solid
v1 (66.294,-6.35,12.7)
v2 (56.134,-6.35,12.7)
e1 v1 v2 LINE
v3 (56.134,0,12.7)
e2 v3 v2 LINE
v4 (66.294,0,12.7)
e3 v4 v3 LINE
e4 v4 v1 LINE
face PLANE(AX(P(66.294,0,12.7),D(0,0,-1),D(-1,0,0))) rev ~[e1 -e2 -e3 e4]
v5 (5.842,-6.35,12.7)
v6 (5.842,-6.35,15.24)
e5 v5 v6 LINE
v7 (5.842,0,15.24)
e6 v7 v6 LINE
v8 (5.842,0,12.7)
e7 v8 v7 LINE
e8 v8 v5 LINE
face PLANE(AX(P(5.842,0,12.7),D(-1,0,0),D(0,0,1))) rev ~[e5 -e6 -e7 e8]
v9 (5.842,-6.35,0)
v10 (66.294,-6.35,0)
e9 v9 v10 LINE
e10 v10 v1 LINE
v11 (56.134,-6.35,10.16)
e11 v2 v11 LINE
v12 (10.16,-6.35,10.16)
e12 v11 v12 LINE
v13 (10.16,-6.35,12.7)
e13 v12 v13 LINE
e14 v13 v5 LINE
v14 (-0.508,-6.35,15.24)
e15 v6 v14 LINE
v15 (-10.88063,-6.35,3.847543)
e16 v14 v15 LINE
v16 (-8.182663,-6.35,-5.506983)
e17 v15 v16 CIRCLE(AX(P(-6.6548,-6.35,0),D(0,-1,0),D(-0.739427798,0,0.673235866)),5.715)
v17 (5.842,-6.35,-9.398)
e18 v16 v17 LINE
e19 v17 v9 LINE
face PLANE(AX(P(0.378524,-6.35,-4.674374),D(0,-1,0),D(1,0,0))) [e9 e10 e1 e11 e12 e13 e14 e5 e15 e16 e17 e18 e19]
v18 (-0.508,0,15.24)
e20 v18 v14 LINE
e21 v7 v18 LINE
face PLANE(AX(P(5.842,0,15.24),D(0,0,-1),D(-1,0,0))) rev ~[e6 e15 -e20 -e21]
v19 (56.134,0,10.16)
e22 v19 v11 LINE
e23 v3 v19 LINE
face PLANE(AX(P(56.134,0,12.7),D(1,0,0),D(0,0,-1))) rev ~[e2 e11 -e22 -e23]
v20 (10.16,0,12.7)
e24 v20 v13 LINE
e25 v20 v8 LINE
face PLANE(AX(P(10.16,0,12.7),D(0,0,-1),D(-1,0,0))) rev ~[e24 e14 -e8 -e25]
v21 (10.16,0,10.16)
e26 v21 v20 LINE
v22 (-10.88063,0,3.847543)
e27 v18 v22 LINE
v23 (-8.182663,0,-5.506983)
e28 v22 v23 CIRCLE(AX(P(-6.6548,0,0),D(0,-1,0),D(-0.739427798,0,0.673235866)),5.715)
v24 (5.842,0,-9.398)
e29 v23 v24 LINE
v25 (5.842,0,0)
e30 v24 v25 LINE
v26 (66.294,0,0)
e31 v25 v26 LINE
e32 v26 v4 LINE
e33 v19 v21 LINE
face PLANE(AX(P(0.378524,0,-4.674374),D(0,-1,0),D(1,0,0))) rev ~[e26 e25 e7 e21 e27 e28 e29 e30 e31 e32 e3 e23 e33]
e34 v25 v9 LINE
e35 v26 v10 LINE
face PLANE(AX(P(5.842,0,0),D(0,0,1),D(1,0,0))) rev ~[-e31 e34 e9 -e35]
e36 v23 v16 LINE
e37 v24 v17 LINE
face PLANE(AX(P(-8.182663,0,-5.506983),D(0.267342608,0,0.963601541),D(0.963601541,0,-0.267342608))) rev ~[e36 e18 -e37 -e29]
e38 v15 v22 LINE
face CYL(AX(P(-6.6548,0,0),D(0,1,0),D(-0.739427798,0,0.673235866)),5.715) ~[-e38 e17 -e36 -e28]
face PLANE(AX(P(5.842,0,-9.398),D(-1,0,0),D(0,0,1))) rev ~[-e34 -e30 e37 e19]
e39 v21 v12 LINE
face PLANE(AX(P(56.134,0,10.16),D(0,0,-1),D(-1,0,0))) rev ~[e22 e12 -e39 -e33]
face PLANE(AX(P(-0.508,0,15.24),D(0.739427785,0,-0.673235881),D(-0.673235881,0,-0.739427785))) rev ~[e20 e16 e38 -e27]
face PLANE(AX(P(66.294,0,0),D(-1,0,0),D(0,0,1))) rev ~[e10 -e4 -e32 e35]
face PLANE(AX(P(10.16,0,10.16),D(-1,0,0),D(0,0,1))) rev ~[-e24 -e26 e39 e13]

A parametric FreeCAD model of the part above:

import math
import FreeCAD as App
import Part
import Sketcher
from FreeCAD import Vector
Q = App.Units.Quantity

doc = App.newDocument("Part")
body = doc.addObject("PartDesign::Body", "Body")

# Sketch on XZ plane
sketch1 = body.newObject("Sketcher::SketchObject", "Sketch")
sketch1.AttachmentSupport = (doc.getObject("XZ_Plane"), [""])
sketch1.MapMode = "FlatFace"
sketch1.addGeometry(Part.LineSegment(Vector(5.8, -9.4, 0), Vector(5.8, 0, 0)), False)
sketch1.addGeometry(Part.LineSegment(Vector(5.8, 0, 0), Vector(66.3, 0, 0)), False)
sketch1.addGeometry(Part.LineSegment(Vector(66.3, 0, 0), Vector(66.3, 12.7, 0)), False)
sketch1.addGeometry(Part.LineSegment(Vector(66.3, 12.7, 0), Vector(56.1, 12.7, 0)), False)
sketch1.addGeometry(Part.LineSegment(Vector(56.1, 12.7, 0), Vector(56.1, 10.2, 0)), False)
sketch1.addGeometry(Part.LineSegment(Vector(56.1, 10.2, 0), Vector(10.2, 10.2, 0)), False)
sketch1.addGeometry(Part.LineSegment(Vector(10.2, 10.2, 0), Vector(10.2, 12.7, 0)), False)
sketch1.addGeometry(Part.LineSegment(Vector(10.2, 12.7, 0), Vector(5.8, 12.7, 0)), False)
sketch1.addGeometry(Part.LineSegment(Vector(5.8, 12.7, 0), Vector(5.8, 15.2, 0)), False)
sketch1.addGeometry(Part.LineSegment(Vector(5.8, 15.2, 0), Vector(-0.5, 15.2, 0)), False)
sketch1.addGeometry(Part.LineSegment(Vector(-0.5, 15.2, 0), Vector(-10.9, 3.8, 0)), False)
sketch1.addGeometry(Part.ArcOfCircle(Part.Circle(Vector(-6.7, 0, 0), Vector(0, 0, 1), 5.7), math.radians(138), math.radians(254)), False)
sketch1.addGeometry(Part.LineSegment(Vector(-8.2, -5.5, 0), Vector(5.8, -9.4, 0)), False)
sketch1.addConstraint(Sketcher.Constraint("Coincident", 0, 2, 1, 1))
sketch1.addConstraint(Sketcher.Constraint("Coincident", 1, 2, 2, 1))
sketch1.addConstraint(Sketcher.Constraint("Coincident", 2, 2, 3, 1))
sketch1.addConstraint(Sketcher.Constraint("Coincident", 3, 2, 4, 1))
sketch1.addConstraint(Sketcher.Constraint("Coincident", 4, 2, 5, 1))
sketch1.addConstraint(Sketcher.Constraint("Coincident", 5, 2, 6, 1))
sketch1.addConstraint(Sketcher.Constraint("Coincident", 6, 2, 7, 1))
sketch1.addConstraint(Sketcher.Constraint("Coincident", 7, 2, 8, 1))
sketch1.addConstraint(Sketcher.Constraint("Coincident", 8, 2, 9, 1))
sketch1.addConstraint(Sketcher.Constraint("Coincident", 9, 2, 10, 1))
sketch1.addConstraint(Sketcher.Constraint("Tangent", 10, 2, 11, 1))
sketch1.addConstraint(Sketcher.Constraint("Tangent", 11, 2, 12, 1))
sketch1.addConstraint(Sketcher.Constraint("Coincident", 12, 2, 0, 1))
sketch1.addConstraint(Sketcher.Constraint("Vertical", 0))
sketch1.addConstraint(Sketcher.Constraint("Horizontal", 1))
sketch1.addConstraint(Sketcher.Constraint("Vertical", 2))
sketch1.addConstraint(Sketcher.Constraint("Horizontal", 3))
sketch1.addConstraint(Sketcher.Constraint("Vertical", 4))
sketch1.addConstraint(Sketcher.Constraint("Horizontal", 5))
sketch1.addConstraint(Sketcher.Constraint("Vertical", 6))
sketch1.addConstraint(Sketcher.Constraint("Horizontal", 7))
sketch1.addConstraint(Sketcher.Constraint("Vertical", 8))
sketch1.addConstraint(Sketcher.Constraint("Horizontal", 9))
sketch1.addConstraint(Sketcher.Constraint("PointOnObject", 11, 3, -1))
sketch1.addConstraint(Sketcher.Constraint("PointOnObject", 0, 2, -1))
sketch1.addConstraint(Sketcher.Constraint("Horizontal", 3, 2, 6, 2))
sketch1.addConstraint(Sketcher.Constraint("Vertical", 0, 2, 7, 2))
sketch1.addConstraint(Sketcher.Constraint("Equal", 6, 8))
sketch1.addConstraint(Sketcher.Constraint("DistanceX", 3, 2, 3, 1, Q("0.4 in")))
sketch1.addConstraint(Sketcher.Constraint("DistanceY", 2, 1, 2, 2, Q("0.5 in")))
sketch1.addConstraint(Sketcher.Constraint("DistanceY", 4, 2, 4, 1, Q("0.1 in")))
sketch1.addConstraint(Sketcher.Constraint("Radius", 11, Q("0.225 in")))
sketch1.addConstraint(Sketcher.Constraint("DistanceX", 1, 1, 1, 2, Q("2.38 in")))
sketch1.addConstraint(Sketcher.Constraint("DistanceX", 5, 2, 5, 1, Q("1.81 in")))
sketch1.addConstraint(Sketcher.Constraint("DistanceX", 9, 2, 9, 1, Q("0.25 in")))
sketch1.addConstraint(Sketcher.Constraint("DistanceY", 0, 1, 0, 2, Q("0.37 in")))
sketch1.addConstraint(Sketcher.Constraint("DistanceX", -1, 1, 5, 2, Q("0.4 in")))
sketch1.addConstraint(Sketcher.Constraint("DistanceX", 11, 3, -1, 1, Q("0.262 in")))
pad1 = body.newObject("PartDesign::Pad", "Pad")
pad1.Profile = sketch1
pad1.Length = Q("0.25 in")

# Sketch on XZ plane
sketch2 = body.newObject("Sketcher::SketchObject", "Sketch001")
sketch2.AttachmentSupport = (doc.getObject("XZ_Plane"), [""])
sketch2.MapMode = "FlatFace"
sketch2.addGeometry(Part.ArcOfCircle(Part.Circle(Vector(-6.7, 0, 0), Vector(0, 0, 1), 5.7), math.radians(-106), math.radians(0)), False)
sketch2.addGeometry(Part.ArcOfCircle(Part.Circle(Vector(-6.7, 0, 0), Vector(0, 0, 1), 5.7), math.radians(0), math.radians(138)), False)
sketch2.addGeometry(Part.ArcOfCircle(Part.Circle(Vector(-6.7, 0, 0), Vector(0, 0, 1), 5.7), math.radians(138), math.radians(254)), False)
sketch2.addGeometry(Part.Circle(Vector(-6.7, 0, 0), Vector(0, 0, 1), 3.2), False)
sketch2.addConstraint(Sketcher.Constraint("Tangent", 0, 2, 1, 1))
sketch2.addConstraint(Sketcher.Constraint("Tangent", 1, 2, 2, 1))
sketch2.addConstraint(Sketcher.Constraint("Tangent", 2, 2, 0, 1))
sketch2.addConstraint(Sketcher.Constraint("Coincident", 3, 3, 0, 3))
sketch2.addConstraint(Sketcher.Constraint("PointOnObject", 0, 3, -1))
sketch2.addConstraint(Sketcher.Constraint("PointOnObject", 0, 2, -1))
sketch2.addConstraint(Sketcher.Constraint("Diameter", 3, Q("0.25 in")))
sketch2.addConstraint(Sketcher.Constraint("Radius", 0, Q("0.225 in")))
sketch2.addConstraint(Sketcher.Constraint("DistanceX", 0, 3, -1, 1, Q("0.262 in")))
sketch2.addConstraint(Sketcher.Constraint("DistanceX", 1, 2, -1, 1, 10.88063))
sketch2.addConstraint(Sketcher.Constraint("DistanceX", 2, 2, -1, 1, 8.182663))
pad2 = body.newObject("PartDesign::Pad", "Pad001")
pad2.Profile = sketch2
pad2.Length = Q("0.12 in")

doc.recompute()
